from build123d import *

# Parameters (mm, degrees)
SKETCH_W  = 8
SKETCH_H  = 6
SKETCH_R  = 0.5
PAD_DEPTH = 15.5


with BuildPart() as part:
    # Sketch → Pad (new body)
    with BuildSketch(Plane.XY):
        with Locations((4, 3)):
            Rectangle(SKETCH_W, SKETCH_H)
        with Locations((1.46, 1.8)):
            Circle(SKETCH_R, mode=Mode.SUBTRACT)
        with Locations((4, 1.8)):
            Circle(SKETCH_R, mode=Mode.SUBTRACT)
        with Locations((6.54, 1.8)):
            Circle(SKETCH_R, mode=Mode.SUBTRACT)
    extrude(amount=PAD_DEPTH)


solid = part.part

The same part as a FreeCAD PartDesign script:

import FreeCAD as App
import Part
import Sketcher

V = App.Vector


def add_polygon(sketch, points):
    """Adds a closed chain of lines whose ends are joined by coincident constraints."""
    first, n = sketch.GeometryCount, len(points)
    for a, b in zip(points, points[1:] + points[:1]):
        sketch.addGeometry(Part.LineSegment(App.Vector(*a, 0), App.Vector(*b, 0)), False)
    for i in range(n):
        sketch.addConstraint(Sketcher.Constraint("Coincident", first + i, 2, first + (i + 1) % n, 1))

doc = App.newDocument("Part")
params = doc.addObject("Spreadsheet::Sheet", "Params")
for row, (alias, value) in enumerate([
    ("sketch1_diameter", "1 mm"),
    ("sketch1_width", "8 mm"),
    ("sketch1_height", "6 mm"),
    ("pad1_length", "15.5 mm"),
], start=1):
    params.set(f"A{row}", alias)
    params.set(f"B{row}", "=" + value)
    params.setAlias(f"B{row}", alias)

body = doc.addObject("PartDesign::Body", "Body")

# Sketch on XY plane
sketch1 = body.newObject("Sketcher::SketchObject", "Sketch")
sketch1.AttachmentSupport = (doc.getObject("XY_Plane"), [""])
sketch1.MapMode = "FlatFace"
add_polygon(sketch1, [(0, 6), (0, 0), (8, 0), (8, 6)])  # lines 0-3
sketch1.addGeometry(Part.Circle(V(1.5, 1.8, 0), V(0, 0, 1), 0.5), False)  # 4
sketch1.addGeometry(Part.Circle(V(4, 1.8, 0), V(0, 0, 1), 0.5), False)  # 5
sketch1.addGeometry(Part.Circle(V(6.5, 1.8, 0), V(0, 0, 1), 0.5), False)  # 6
sketch1.addConstraint(Sketcher.Constraint("Vertical", 0))
sketch1.addConstraint(Sketcher.Constraint("Horizontal", 1))
sketch1.addConstraint(Sketcher.Constraint("Vertical", 2))
sketch1.addConstraint(Sketcher.Constraint("Horizontal", 3))
sketch1.addConstraint(Sketcher.Constraint("Coincident", 0, 2, -1, 1))
sketch1.addConstraint(Sketcher.Constraint("Equal", 4, 5))
sketch1.addConstraint(Sketcher.Constraint("Equal", 5, 6))
sketch1.addConstraint(Sketcher.Constraint("Horizontal", 4, 3, 5, 3))
sketch1.addConstraint(Sketcher.Constraint("Horizontal", 5, 3, 6, 3))
sketch1.addConstraint(Sketcher.Constraint("Diameter", 4, 1.0))
sketch1.addConstraint(Sketcher.Constraint("DistanceX", 1, 1, 1, 2, 8.0))
sketch1.addConstraint(Sketcher.Constraint("DistanceY", 0, 2, 0, 1, 6.0))
sketch1.addConstraint(Sketcher.Constraint("DistanceX", -1, 1, 5, 3, 4.0))
sketch1.addConstraint(Sketcher.Constraint("DistanceY", -1, 1, 4, 3, 1.8))
sketch1.addConstraint(Sketcher.Constraint("DistanceX", -1, 1, 4, 3, 1.46))
sketch1.addConstraint(Sketcher.Constraint("DistanceX", -1, 1, 6, 3, 6.54))
sketch1.setExpression("Constraints[13]", "Params.sketch1_diameter")
sketch1.setExpression("Constraints[14]", "Params.sketch1_width")
sketch1.setExpression("Constraints[15]", "Params.sketch1_height")
pad1 = body.newObject("PartDesign::Pad", "Pad")
pad1.Profile = sketch1
pad1.setExpression("Length", "Params.pad1_length")

doc.recompute()
